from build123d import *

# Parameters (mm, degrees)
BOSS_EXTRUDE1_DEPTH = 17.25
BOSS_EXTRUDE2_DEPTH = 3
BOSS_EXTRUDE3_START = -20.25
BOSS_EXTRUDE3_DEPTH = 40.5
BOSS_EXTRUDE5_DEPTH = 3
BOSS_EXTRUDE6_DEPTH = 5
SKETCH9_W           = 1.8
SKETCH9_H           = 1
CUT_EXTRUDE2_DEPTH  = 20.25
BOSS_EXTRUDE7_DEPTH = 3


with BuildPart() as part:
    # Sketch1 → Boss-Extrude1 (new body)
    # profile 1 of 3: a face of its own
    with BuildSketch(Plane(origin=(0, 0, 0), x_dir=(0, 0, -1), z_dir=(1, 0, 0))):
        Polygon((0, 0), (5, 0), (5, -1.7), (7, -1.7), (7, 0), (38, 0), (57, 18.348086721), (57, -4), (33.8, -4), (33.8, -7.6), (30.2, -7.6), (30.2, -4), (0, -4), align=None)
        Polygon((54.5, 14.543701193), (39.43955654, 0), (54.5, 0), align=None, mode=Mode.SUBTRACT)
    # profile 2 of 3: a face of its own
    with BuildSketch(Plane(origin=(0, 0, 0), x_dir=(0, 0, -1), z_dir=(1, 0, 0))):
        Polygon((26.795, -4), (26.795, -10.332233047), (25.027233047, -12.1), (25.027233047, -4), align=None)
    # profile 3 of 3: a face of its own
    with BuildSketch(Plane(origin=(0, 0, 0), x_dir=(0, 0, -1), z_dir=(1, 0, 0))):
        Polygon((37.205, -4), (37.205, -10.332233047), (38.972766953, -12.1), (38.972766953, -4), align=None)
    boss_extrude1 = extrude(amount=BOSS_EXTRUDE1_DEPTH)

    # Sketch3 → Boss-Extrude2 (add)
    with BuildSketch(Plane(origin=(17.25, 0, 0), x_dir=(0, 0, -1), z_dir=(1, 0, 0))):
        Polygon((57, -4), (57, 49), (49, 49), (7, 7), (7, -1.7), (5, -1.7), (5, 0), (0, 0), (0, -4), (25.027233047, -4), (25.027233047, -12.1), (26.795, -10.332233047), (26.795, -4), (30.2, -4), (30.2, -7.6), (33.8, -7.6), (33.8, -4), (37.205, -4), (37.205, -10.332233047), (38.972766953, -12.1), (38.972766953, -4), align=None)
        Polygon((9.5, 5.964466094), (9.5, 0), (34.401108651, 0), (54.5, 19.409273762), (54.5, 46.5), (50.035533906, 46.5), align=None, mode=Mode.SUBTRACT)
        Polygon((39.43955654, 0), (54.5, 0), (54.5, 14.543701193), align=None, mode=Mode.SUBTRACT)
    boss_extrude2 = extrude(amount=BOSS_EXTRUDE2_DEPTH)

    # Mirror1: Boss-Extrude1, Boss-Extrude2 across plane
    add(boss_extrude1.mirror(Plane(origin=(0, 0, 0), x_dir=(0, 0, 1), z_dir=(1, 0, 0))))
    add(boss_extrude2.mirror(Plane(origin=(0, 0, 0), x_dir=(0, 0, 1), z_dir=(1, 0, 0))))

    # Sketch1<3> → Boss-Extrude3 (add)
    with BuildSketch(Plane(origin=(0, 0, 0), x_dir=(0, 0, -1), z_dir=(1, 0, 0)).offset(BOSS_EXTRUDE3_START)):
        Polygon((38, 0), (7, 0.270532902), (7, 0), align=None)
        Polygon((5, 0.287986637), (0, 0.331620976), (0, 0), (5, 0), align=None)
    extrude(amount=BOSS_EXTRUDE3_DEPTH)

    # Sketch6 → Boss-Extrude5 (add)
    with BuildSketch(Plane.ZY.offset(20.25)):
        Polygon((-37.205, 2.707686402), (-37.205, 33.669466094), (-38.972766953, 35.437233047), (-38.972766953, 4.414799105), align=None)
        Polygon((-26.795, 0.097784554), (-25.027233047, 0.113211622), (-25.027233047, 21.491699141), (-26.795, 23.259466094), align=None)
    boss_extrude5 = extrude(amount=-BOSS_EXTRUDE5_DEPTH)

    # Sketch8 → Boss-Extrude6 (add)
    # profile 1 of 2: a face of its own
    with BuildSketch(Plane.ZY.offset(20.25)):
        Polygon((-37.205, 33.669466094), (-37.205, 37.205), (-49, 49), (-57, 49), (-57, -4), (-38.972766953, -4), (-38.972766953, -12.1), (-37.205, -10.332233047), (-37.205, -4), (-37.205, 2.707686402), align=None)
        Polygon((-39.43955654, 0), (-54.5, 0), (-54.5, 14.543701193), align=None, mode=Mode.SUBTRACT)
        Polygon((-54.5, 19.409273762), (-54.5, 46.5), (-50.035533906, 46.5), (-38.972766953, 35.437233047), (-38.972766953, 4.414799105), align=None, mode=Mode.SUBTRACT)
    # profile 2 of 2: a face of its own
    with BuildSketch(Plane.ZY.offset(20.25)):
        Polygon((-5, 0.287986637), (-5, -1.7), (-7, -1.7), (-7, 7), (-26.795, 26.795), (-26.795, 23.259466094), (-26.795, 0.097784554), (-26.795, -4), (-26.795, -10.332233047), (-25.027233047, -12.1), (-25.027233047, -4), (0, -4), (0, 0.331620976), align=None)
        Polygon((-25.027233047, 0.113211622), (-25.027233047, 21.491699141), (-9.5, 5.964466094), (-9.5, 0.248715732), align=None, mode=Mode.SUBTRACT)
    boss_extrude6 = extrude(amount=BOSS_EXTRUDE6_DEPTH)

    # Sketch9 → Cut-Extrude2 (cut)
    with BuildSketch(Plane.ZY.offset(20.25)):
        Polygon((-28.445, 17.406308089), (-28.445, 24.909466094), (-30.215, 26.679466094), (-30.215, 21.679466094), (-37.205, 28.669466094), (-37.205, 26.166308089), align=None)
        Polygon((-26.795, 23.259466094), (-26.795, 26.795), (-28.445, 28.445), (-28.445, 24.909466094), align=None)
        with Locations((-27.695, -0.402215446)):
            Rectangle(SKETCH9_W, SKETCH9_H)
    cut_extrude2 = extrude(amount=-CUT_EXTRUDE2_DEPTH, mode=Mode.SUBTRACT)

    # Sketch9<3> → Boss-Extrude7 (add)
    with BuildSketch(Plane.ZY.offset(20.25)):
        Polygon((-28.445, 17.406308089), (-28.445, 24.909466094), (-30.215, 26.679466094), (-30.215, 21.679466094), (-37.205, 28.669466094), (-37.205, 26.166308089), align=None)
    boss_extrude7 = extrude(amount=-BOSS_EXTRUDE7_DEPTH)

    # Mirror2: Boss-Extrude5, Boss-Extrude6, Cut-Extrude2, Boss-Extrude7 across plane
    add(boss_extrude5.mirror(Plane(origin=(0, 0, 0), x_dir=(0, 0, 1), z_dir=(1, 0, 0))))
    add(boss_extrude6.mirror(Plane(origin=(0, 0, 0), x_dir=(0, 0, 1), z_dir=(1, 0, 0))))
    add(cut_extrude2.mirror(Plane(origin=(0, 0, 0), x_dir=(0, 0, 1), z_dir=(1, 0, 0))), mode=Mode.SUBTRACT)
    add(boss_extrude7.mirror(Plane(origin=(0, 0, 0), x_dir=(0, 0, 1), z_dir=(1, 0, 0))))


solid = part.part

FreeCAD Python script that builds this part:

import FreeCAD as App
import Part
import Sketcher

V = App.Vector
Q = App.Units.Quantity

doc = App.newDocument("Part")
body = doc.addObject("PartDesign::Body", "Body")

# Sketch on YZ plane
sketch1 = doc.addObject("Sketcher::SketchObject", "Sketch")
body.addObject(sketch1)
sketch1.AttachmentSupport = (doc.YZ_Plane, [""])
sketch1.MapMode = "FlatFace"
sketch1.addGeometry([
    Part.LineSegment(V(0, -5, 0), V(0, 0, 0)),  # 0
    Part.LineSegment(V(0, 0, 0), V(-4, 0, 0)),  # 1
    Part.LineSegment(V(-4, 0, 0), V(-4, -25, 0)),  # 2
    Part.LineSegment(V(-4, -25, 0), V(-12.1, -25, 0)),  # 3
    Part.LineSegment(V(-12.1, -25, 0), V(-10.3, -26.8, 0)),  # 4
    Part.LineSegment(V(-10.3, -26.8, 0), V(-4, -26.8, 0)),  # 5
    Part.LineSegment(V(-4, -26.8, 0), V(-4, -30.2, 0)),  # 6
    Part.LineSegment(V(-4, -30.2, 0), V(-7.6, -30.2, 0)),  # 7
    Part.LineSegment(V(-7.6, -30.2, 0), V(-7.6, -33.8, 0)),  # 8
    Part.LineSegment(V(-7.6, -33.8, 0), V(-4, -33.8, 0)),  # 9
    Part.LineSegment(V(-4, -33.8, 0), V(-4, -37.2, 0)),  # 10
    Part.LineSegment(V(-4, -37.2, 0), V(-10.3, -37.2, 0)),  # 11
    Part.LineSegment(V(-10.3, -37.2, 0), V(-12.1, -39, 0)),  # 12
    Part.LineSegment(V(-12.1, -39, 0), V(-4, -39, 0)),  # 13
    Part.LineSegment(V(-4, -39, 0), V(-4, -57, 0)),  # 14
    Part.LineSegment(V(-4, -57, 0), V(18.3, -57, 0)),  # 15
    Part.LineSegment(V(18.3, -57, 0), V(0, -38, 0)),  # 16
    Part.LineSegment(V(0, -38, 0), V(0, -7, 0)),  # 17
    Part.LineSegment(V(0, -7, 0), V(-1.7, -7, 0)),  # 18
    Part.LineSegment(V(-1.7, -7, 0), V(-1.7, -5, 0)),  # 19
    Part.LineSegment(V(-1.7, -5, 0), V(0, -5, 0)),  # 20
    Part.LineSegment(V(14.5, -54.5, 0), V(0, -54.5, 0)),  # 21
    Part.LineSegment(V(0, -54.5, 0), V(0, -39.4, 0)),  # 22
    Part.LineSegment(V(0, -39.4, 0), V(14.5, -54.5, 0)),  # 23
], False)
sketch1.addConstraint([
    Sketcher.Constraint("Coincident", 0, 2, 1, 1),
    Sketcher.Constraint("Coincident", 1, 2, 2, 1),
    Sketcher.Constraint("Coincident", 2, 2, 3, 1),
    Sketcher.Constraint("Coincident", 3, 2, 4, 1),
    Sketcher.Constraint("Coincident", 4, 2, 5, 1),
    Sketcher.Constraint("Coincident", 5, 2, 6, 1),
    Sketcher.Constraint("Coincident", 6, 2, 7, 1),
    Sketcher.Constraint("Coincident", 7, 2, 8, 1),
    Sketcher.Constraint("Coincident", 8, 2, 9, 1),
    Sketcher.Constraint("Coincident", 9, 2, 10, 1),
    Sketcher.Constraint("Coincident", 10, 2, 11, 1),
    Sketcher.Constraint("Coincident", 11, 2, 12, 1),
    Sketcher.Constraint("Coincident", 12, 2, 13, 1),
    Sketcher.Constraint("Coincident", 13, 2, 14, 1),
    Sketcher.Constraint("Coincident", 14, 2, 15, 1),
    Sketcher.Constraint("Coincident", 15, 2, 16, 1),
    Sketcher.Constraint("Coincident", 16, 2, 17, 1),
    Sketcher.Constraint("Coincident", 17, 2, 18, 1),
    Sketcher.Constraint("Coincident", 18, 2, 19, 1),
    Sketcher.Constraint("Coincident", 19, 2, 20, 1),
    Sketcher.Constraint("Coincident", 20, 2, 0, 1),
    Sketcher.Constraint("Coincident", 21, 2, 22, 1),
    Sketcher.Constraint("Coincident", 22, 2, 23, 1),
    Sketcher.Constraint("Coincident", 23, 2, 21, 1),
    Sketcher.Constraint("Vertical", 0),
    Sketcher.Constraint("Horizontal", 1),
    Sketcher.Constraint("Vertical", 2),
    Sketcher.Constraint("Horizontal", 3),
    Sketcher.Constraint("Horizontal", 5),
    Sketcher.Constraint("Vertical", 6),
    Sketcher.Constraint("Horizontal", 7),
    Sketcher.Constraint("Vertical", 8),
    Sketcher.Constraint("Horizontal", 9),
    Sketcher.Constraint("Vertical", 10),
    Sketcher.Constraint("Horizontal", 11),
    Sketcher.Constraint("Horizontal", 13),
    Sketcher.Constraint("Vertical", 14),
    Sketcher.Constraint("Horizontal", 15),
    Sketcher.Constraint("Vertical", 17),
    Sketcher.Constraint("Horizontal", 18),
    Sketcher.Constraint("Vertical", 19),
    Sketcher.Constraint("Horizontal", 20),
    Sketcher.Constraint("Horizontal", 21),
    Sketcher.Constraint("Vertical", 22),
    Sketcher.Constraint("Coincident", 0, 2, -1, 1),
    Sketcher.Constraint("PointOnObject", 16, 2, -2),
    Sketcher.Constraint("PointOnObject", 21, 2, -2),
    Sketcher.Constraint("Perpendicular", 4, 12),
    Sketcher.Constraint("Parallel", 16, 23),
    Sketcher.Constraint("Vertical", 2, 2, 5, 2),
    Sketcher.Constraint("Vertical", 6, 2, 9, 2),
    Sketcher.Constraint("Vertical", 4, 2, 11, 2),
    Sketcher.Constraint("Vertical", 3, 2, 12, 2),
    Sketcher.Constraint("Vertical", 10, 2, 13, 2),
    Sketcher.Constraint("Equal", 9, 8),
    Sketcher.Constraint("Equal", 6, 10),
    Sketcher.Constraint("Equal", 4, 12),
    Sketcher.Constraint("DistanceX", 1, 2, 1, 1, Q("4 mm")),
    Sketcher.Constraint("DistanceY", 0, 1, 0, 2, Q("5 mm")),
    Sketcher.Constraint("DistanceY", 17, 1, 17, 2, Q("31 mm")),
    Sketcher.Constraint("DistanceY", 19, 1, 19, 2, Q("2 mm")),
    Sketcher.Constraint("Angle", 16, Q("134 deg")),
    Sketcher.Constraint("DistanceX", 3, 2, 3, 1, Q("8.1 mm")),
    Sketcher.Constraint("DistanceX", 7, 2, 7, 1, Q("3.6 mm")),
    Sketcher.Constraint("DistanceX", 18, 2, 18, 1, Q("1.7 mm")),
    Sketcher.Constraint("DistanceY", 14, 2, -1, 1, Q("57 mm")),
    Sketcher.Constraint("Distance", 4, Q("2.5 mm")),
    Sketcher.Constraint("DistanceY", 6, 2, -1, 1, Q("30.2 mm")),
    Sketcher.Constraint("DistanceY", 21, 2, -1, 1, Q("54.5 mm")),
    Sketcher.Constraint("DistanceY", 6, 2, 6, 1, Q("3.405 mm")),
    Sketcher.Constraint("DistanceX", 21, 2, 21, 1, Q("14.543701 mm")),
])
pad1 = doc.addObject("PartDesign::Pad", "Pad")
body.addObject(pad1)
pad1.Profile = sketch1
pad1.Length = 17.25

# Sketch on YZ plane
sketch2 = doc.addObject("Sketcher::SketchObject", "Sketch001")
body.addObject(sketch2)
sketch2.AttachmentSupport = (doc.YZ_Plane, [""])
sketch2.MapMode = "FlatFace"
sketch2.AttachmentOffset = App.Placement(V(0, 0, 17.25), App.Rotation())
sketch2.addGeometry([
    Part.LineSegment(V(-4, -57, 0), V(49, -57, 0)),  # 0
    Part.LineSegment(V(49, -57, 0), V(49, -49, 0)),  # 1
    Part.LineSegment(V(49, -49, 0), V(7, -7, 0)),  # 2
    Part.LineSegment(V(7, -7, 0), V(-1.7, -7, 0)),  # 3
    Part.LineSegment(V(-1.7, -7, 0), V(-1.7, -5, 0)),  # 4
    Part.LineSegment(V(-1.7, -5, 0), V(0, -5, 0)),  # 5
    Part.LineSegment(V(0, -5, 0), V(0, 0, 0)),  # 6
    Part.LineSegment(V(0, 0, 0), V(-4, 0, 0)),  # 7
    Part.LineSegment(V(-4, 0, 0), V(-4, -25, 0)),  # 8
    Part.LineSegment(V(-4, -25, 0), V(-12.1, -25, 0)),  # 9
    Part.LineSegment(V(-12.1, -25, 0), V(-10.3, -26.8, 0)),  # 10
    Part.LineSegment(V(-10.3, -26.8, 0), V(-4, -26.8, 0)),  # 11
    Part.LineSegment(V(-4, -26.8, 0), V(-4, -30.2, 0)),  # 12
    Part.LineSegment(V(-4, -30.2, 0), V(-7.6, -30.2, 0)),  # 13
    Part.LineSegment(V(-7.6, -30.2, 0), V(-7.6, -33.8, 0)),  # 14
    Part.LineSegment(V(-7.6, -33.8, 0), V(-4, -33.8, 0)),  # 15
    Part.LineSegment(V(-4, -33.8, 0), V(-4, -37.2, 0)),  # 16
    Part.LineSegment(V(-4, -37.2, 0), V(-10.3, -37.2, 0)),  # 17
    Part.LineSegment(V(-10.3, -37.2, 0), V(-12.1, -39, 0)),  # 18
    Part.LineSegment(V(-12.1, -39, 0), V(-4, -39, 0)),  # 19
    Part.LineSegment(V(-4, -39, 0), V(-4, -57, 0)),  # 20
    Part.LineSegment(V(0, -54.5, 0), V(0, -39.4, 0)),  # 21
    Part.LineSegment(V(0, -39.4, 0), V(14.5, -54.5, 0)),  # 22
    Part.LineSegment(V(14.5, -54.5, 0), V(0, -54.5, 0)),  # 23
    Part.LineSegment(V(0, -9.5, 0), V(6, -9.5, 0)),  # 24
    Part.LineSegment(V(6, -9.5, 0), V(46.5, -50, 0)),  # 25
    Part.LineSegment(V(46.5, -50, 0), V(46.5, -54.5, 0)),  # 26
    Part.LineSegment(V(46.5, -54.5, 0), V(19.4, -54.5, 0)),  # 27
    Part.LineSegment(V(19.4, -54.5, 0), V(0, -34.4, 0)),  # 28
    Part.LineSegment(V(0, -34.4, 0), V(0, -9.5, 0)),  # 29
], False)
sketch2.addConstraint([
    Sketcher.Constraint("Coincident", 0, 2, 1, 1),
    Sketcher.Constraint("Coincident", 1, 2, 2, 1),
    Sketcher.Constraint("Coincident", 2, 2, 3, 1),
    Sketcher.Constraint("Coincident", 3, 2, 4, 1),
    Sketcher.Constraint("Coincident", 4, 2, 5, 1),
    Sketcher.Constraint("Coincident", 5, 2, 6, 1),
    Sketcher.Constraint("Coincident", 6, 2, 7, 1),
    Sketcher.Constraint("Coincident", 7, 2, 8, 1),
    Sketcher.Constraint("Coincident", 8, 2, 9, 1),
    Sketcher.Constraint("Coincident", 9, 2, 10, 1),
    Sketcher.Constraint("Coincident", 10, 2, 11, 1),
    Sketcher.Constraint("Coincident", 11, 2, 12, 1),
    Sketcher.Constraint("Coincident", 12, 2, 13, 1),
    Sketcher.Constraint("Coincident", 13, 2, 14, 1),
    Sketcher.Constraint("Coincident", 14, 2, 15, 1),
    Sketcher.Constraint("Coincident", 15, 2, 16, 1),
    Sketcher.Constraint("Coincident", 16, 2, 17, 1),
    Sketcher.Constraint("Coincident", 17, 2, 18, 1),
    Sketcher.Constraint("Coincident", 18, 2, 19, 1),
    Sketcher.Constraint("Coincident", 19, 2, 20, 1),
    Sketcher.Constraint("Coincident", 20, 2, 0, 1),
    Sketcher.Constraint("Coincident", 21, 2, 22, 1),
    Sketcher.Constraint("Coincident", 22, 2, 23, 1),
    Sketcher.Constraint("Coincident", 23, 2, 21, 1),
    Sketcher.Constraint("Coincident", 24, 2, 25, 1),
    Sketcher.Constraint("Coincident", 25, 2, 26, 1),
    Sketcher.Constraint("Coincident", 26, 2, 27, 1),
    Sketcher.Constraint("Coincident", 27, 2, 28, 1),
    Sketcher.Constraint("Coincident", 28, 2, 29, 1),
    Sketcher.Constraint("Coincident", 29, 2, 24, 1),
    Sketcher.Constraint("Horizontal", 0),
    Sketcher.Constraint("Vertical", 1),
    Sketcher.Constraint("Horizontal", 3),
    Sketcher.Constraint("Vertical", 4),
    Sketcher.Constraint("Horizontal", 5),
    Sketcher.Constraint("Vertical", 6),
    Sketcher.Constraint("Horizontal", 7),
    Sketcher.Constraint("Vertical", 8),
    Sketcher.Constraint("Horizontal", 9),
    Sketcher.Constraint("Horizontal", 11),
    Sketcher.Constraint("Vertical", 12),
    Sketcher.Constraint("Horizontal", 13),
    Sketcher.Constraint("Vertical", 14),
    Sketcher.Constraint("Horizontal", 15),
    Sketcher.Constraint("Vertical", 16),
    Sketcher.Constraint("Horizontal", 17),
    Sketcher.Constraint("Horizontal", 19),
    Sketcher.Constraint("Vertical", 20),
    Sketcher.Constraint("Vertical", 21),
    Sketcher.Constraint("Horizontal", 23),
    Sketcher.Constraint("Horizontal", 24),
    Sketcher.Constraint("Vertical", 26),
    Sketcher.Constraint("Horizontal", 27),
    Sketcher.Constraint("Vertical", 29),
    Sketcher.Constraint("Coincident", 6, 2, -1, 1),
    Sketcher.Constraint("PointOnObject", 21, 2, -2),
    Sketcher.Constraint("PointOnObject", 28, 2, -2),
    Sketcher.Constraint("Parallel", 2, 10),
    Sketcher.Constraint("Perpendicular", 10, 18),
    Sketcher.Constraint("Perpendicular", 18, 25),
    Sketcher.Constraint("Parallel", 22, 28),
    Sketcher.Constraint("Horizontal", 23, 2, 26, 2),
    Sketcher.Constraint("Vertical", 8, 2, 11, 2),
    Sketcher.Constraint("Vertical", 12, 2, 15, 2),
    Sketcher.Constraint("Vertical", 10, 2, 17, 2),
    Sketcher.Constraint("Vertical", 9, 2, 18, 2),
    Sketcher.Constraint("Vertical", 16, 2, 19, 2),
    Sketcher.Constraint("Equal", 15, 14),
    Sketcher.Constraint("Equal", 12, 16),
    Sketcher.Constraint("Equal", 10, 18),
    Sketcher.Constraint("DistanceX", 0, 1, 0, 2, Q("53 mm")),
    Sketcher.Constraint("DistanceX", 7, 2, 7, 1, Q("4 mm")),
    Sketcher.Constraint("DistanceY", 1, 1, 1, 2, Q("8 mm")),
    Sketcher.Constraint("DistanceY", 4, 1, 4, 2, Q("2 mm")),
    Sketcher.Constraint("DistanceY", 6, 1, 6, 2, Q("5 mm")),
    Sketcher.Constraint("Angle", 22, Q("-46 deg")),
    Sketcher.Constraint("DistanceX", 3, 2, 3, 1, Q("8.7 mm")),
    Sketcher.Constraint("DistanceX", 5, 1, 5, 2, Q("1.7 mm")),
    Sketcher.Constraint("DistanceX", 9, 2, 9, 1, Q("8.1 mm")),
    Sketcher.Constraint("DistanceX", 13, 2, 13, 1, Q("3.6 mm")),
    Sketcher.Constraint("Distance", 10, Q("2.5 mm")),
    Sketcher.Constraint("DistanceY", 12, 2, -1, 1, Q("30.2 mm")),
    Sketcher.Constraint("DistanceY", 22, 2, -1, 1, Q("54.5 mm")),
    Sketcher.Constraint("DistanceY", 24, 2, -1, 1, Q("9.5 mm")),
    Sketcher.Constraint("DistanceX", -1, 1, 25, 2, Q("46.5 mm")),
    Sketcher.Constraint("DistanceY", 12, 2, 12, 1, Q("3.405 mm")),
    Sketcher.Constraint("DistanceX", 23, 2, 23, 1, Q("14.543701 mm")),
    Sketcher.Constraint("Distance", 25, Q("57.325902 mm")),
    Sketcher.Constraint("DistanceY", 29, 1, 29, 2, Q("24.901109 mm")),
])
pad2 = doc.addObject("PartDesign::Pad", "Pad001")
body.addObject(pad2)
pad2.Profile = sketch2
pad2.Length = 3
doc.recompute()

mirrored = doc.addObject("PartDesign::Mirrored", "Mirrored")
body.addObject(mirrored)
mirrored.Originals = [pad1, pad2]
mirrored.MirrorPlane = (doc.YZ_Plane, [""])
body.Tip = mirrored

# Sketch on YZ plane
sketch3 = doc.addObject("Sketcher::SketchObject", "Sketch002")
body.addObject(sketch3)
sketch3.AttachmentSupport = (doc.YZ_Plane, [""])
sketch3.MapMode = "FlatFace"
sketch3.AttachmentOffset = App.Placement(V(0, 0, -20.25), App.Rotation())
sketch3.addGeometry([
    Part.LineSegment(V(0, -38, 0), V(0.27, -7, 0)),  # 0
    Part.LineSegment(V(0.27, -7, 0), V(0, -7, 0)),  # 1
    Part.LineSegment(V(0, -7, 0), V(0, -38, 0)),  # 2
    Part.LineSegment(V(0.29, -5, 0), V(0.33, 0, 0)),  # 3
    Part.LineSegment(V(0.33, 0, 0), V(0, 0, 0)),  # 4
    Part.LineSegment(V(0, 0, 0), V(0, -5, 0)),  # 5
    Part.LineSegment(V(0, -5, 0), V(0.29, -5, 0)),  # 6
], False)
sketch3.addConstraint([
    Sketcher.Constraint("Coincident", 0, 2, 1, 1),
    Sketcher.Constraint("Coincident", 1, 2, 2, 1),
    Sketcher.Constraint("Coincident", 2, 2, 0, 1),
    Sketcher.Constraint("Coincident", 3, 2, 4, 1),
    Sketcher.Constraint("Coincident", 4, 2, 5, 1),
    Sketcher.Constraint("Coincident", 5, 2, 6, 1),
    Sketcher.Constraint("Coincident", 6, 2, 3, 1),
    Sketcher.Constraint("Horizontal", 1),
    Sketcher.Constraint("Vertical", 2),
    Sketcher.Constraint("Horizontal", 4),
    Sketcher.Constraint("Vertical", 5),
    Sketcher.Constraint("Horizontal", 6),
    Sketcher.Constraint("Coincident", 4, 2, -1, 1),
    Sketcher.Constraint("PointOnObject", 1, 2, -2),
    Sketcher.Constraint("Parallel", 0, 3),
    Sketcher.Constraint("DistanceY", 2, 2, 2, 1, Q("31 mm")),
    Sketcher.Constraint("DistanceY", 5, 2, 5, 1, Q("5 mm")),
    Sketcher.Constraint("DistanceY", 0, 2, -1, 1, Q("7 mm")),
    Sketcher.Constraint("Angle", 0, Q("89.5 deg")),
    Sketcher.Constraint("DistanceX", 4, 2, 4, 1, Q("0.331621 mm")),
])
pad3 = doc.addObject("PartDesign::Pad", "Pad002")
body.addObject(pad3)
pad3.Profile = sketch3
pad3.Length = 40.5

# Sketch on YZ plane
sketch4 = doc.addObject("Sketcher::SketchObject", "Sketch003")
body.addObject(sketch4)
sketch4.AttachmentSupport = (doc.YZ_Plane, [""])
sketch4.MapMode = "FlatFace"
sketch4.AttachmentOffset = App.Placement(V(0, 0, -20.25), App.Rotation())
sketch4.addGeometry([
    Part.LineSegment(V(2.7, -37.2, 0), V(33.7, -37.2, 0)),  # 0
    Part.LineSegment(V(33.7, -37.2, 0), V(35.4, -39, 0)),  # 1
    Part.LineSegment(V(35.4, -39, 0), V(4.4, -39, 0)),  # 2
    Part.LineSegment(V(4.4, -39, 0), V(2.7, -37.2, 0)),  # 3
    Part.LineSegment(V(0.1, -26.8, 0), V(0.1, -25, 0)),  # 4
    Part.LineSegment(V(0.1, -25, 0), V(21.5, -25, 0)),  # 5
    Part.LineSegment(V(21.5, -25, 0), V(23.3, -26.8, 0)),  # 6
    Part.LineSegment(V(23.3, -26.8, 0), V(0.1, -26.8, 0)),  # 7
], False)
sketch4.addConstraint([
    Sketcher.Constraint("Coincident", 0, 2, 1, 1),
    Sketcher.Constraint("Coincident", 1, 2, 2, 1),
    Sketcher.Constraint("Coincident", 2, 2, 3, 1),
    Sketcher.Constraint("Coincident", 3, 2, 0, 1),
    Sketcher.Constraint("Coincident", 4, 2, 5, 1),
    Sketcher.Constraint("Coincident", 5, 2, 6, 1),
    Sketcher.Constraint("Coincident", 6, 2, 7, 1),
    Sketcher.Constraint("Coincident", 7, 2, 4, 1),
    Sketcher.Constraint("Horizontal", 0),
    Sketcher.Constraint("Horizontal", 2),
    Sketcher.Constraint("Horizontal", 5),
    Sketcher.Constraint("Horizontal", 7),
    Sketcher.Constraint("Parallel", 1, 6),
    Sketcher.Constraint("Equal", 1, 6),
    Sketcher.Constraint("Angle", 1, Q("-45 deg")),
    Sketcher.Constraint("Angle", 3, Q("134 deg")),
    Sketcher.Constraint("Angle", 4, Q("89.5 deg")),
    Sketcher.Constraint("Distance", 1, Q("2.5 mm")),
    Sketcher.Constraint("DistanceX", 6, 2, 0, 2, Q("10.41 mm")),
    Sketcher.Constraint("DistanceY", 0, 2, 6, 2, Q("10.41 mm")),
    Sketcher.Constraint("DistanceY", 0, 2, -1, 1, Q("37.205 mm")),
    Sketcher.Constraint("DistanceX", 0, 1, 0, 2, Q("30.96178 mm")),
    Sketcher.Constraint("DistanceX", 7, 2, 7, 1, Q("23.161682 mm")),
    Sketcher.Constraint("DistanceX", -1, 1, 2, 2, Q("4.414799 mm")),
])
pad4 = doc.addObject("PartDesign::Pad", "Pad003")
body.addObject(pad4)
pad4.Profile = sketch4
pad4.Length = 3

# Sketch on YZ plane
sketch5 = doc.addObject("Sketcher::SketchObject", "Sketch004")
body.addObject(sketch5)
sketch5.AttachmentSupport = (doc.YZ_Plane, [""])
sketch5.MapMode = "FlatFace"
sketch5.AttachmentOffset = App.Placement(V(0, 0, -20.25), App.Rotation())
sketch5.addGeometry([
    Part.LineSegment(V(37.2, -37.2, 0), V(49, -49, 0)),  # 0
    Part.LineSegment(V(49, -49, 0), V(49, -57, 0)),  # 1
    Part.LineSegment(V(49, -57, 0), V(-4, -57, 0)),  # 2
    Part.LineSegment(V(-4, -57, 0), V(-4, -39, 0)),  # 3
    Part.LineSegment(V(-4, -39, 0), V(-12.1, -39, 0)),  # 4
    Part.LineSegment(V(-12.1, -39, 0), V(-10.3, -37.2, 0)),  # 5
    Part.LineSegment(V(-10.3, -37.2, 0), V(37.2, -37.2, 0)),  # 6
    Part.LineSegment(V(14.5, -54.5, 0), V(0, -39.4, 0)),  # 7
    Part.LineSegment(V(0, -39.4, 0), V(0, -54.5, 0)),  # 8
    Part.LineSegment(V(0, -54.5, 0), V(14.5, -54.5, 0)),  # 9
    Part.LineSegment(V(4.4, -39, 0), V(19.4, -54.5, 0)),  # 10
    Part.LineSegment(V(19.4, -54.5, 0), V(46.5, -54.5, 0)),  # 11
    Part.LineSegment(V(46.5, -54.5, 0), V(46.5, -50, 0)),  # 12
    Part.LineSegment(V(46.5, -50, 0), V(35.4, -39, 0)),  # 13
    Part.LineSegment(V(35.4, -39, 0), V(4.4, -39, 0)),  # 14
    Part.LineSegment(V(0.3, -5, 0), V(-1.7, -5, 0)),  # 15
    Part.LineSegment(V(-1.7, -5, 0), V(-1.7, -7, 0)),  # 16
    Part.LineSegment(V(-1.7, -7, 0), V(7, -7, 0)),  # 17
    Part.LineSegment(V(7, -7, 0), V(26.8, -26.8, 0)),  # 18
    Part.LineSegment(V(26.8, -26.8, 0), V(-10.3, -26.8, 0)),  # 19
    Part.LineSegment(V(-10.3, -26.8, 0), V(-12.1, -25, 0)),  # 20
    Part.LineSegment(V(-12.1, -25, 0), V(-4, -25, 0)),  # 21
    Part.LineSegment(V(-4, -25, 0), V(-4, 0, 0)),  # 22
    Part.LineSegment(V(-4, 0, 0), V(0.3, 0, 0)),  # 23
    Part.LineSegment(V(0.3, 0, 0), V(0.3, -5, 0)),  # 24
    Part.LineSegment(V(0.2, -9.5, 0), V(0.1, -25, 0)),  # 25
    Part.LineSegment(V(0.1, -25, 0), V(21.5, -25, 0)),  # 26
    Part.LineSegment(V(21.5, -25, 0), V(6, -9.5, 0)),  # 27
    Part.LineSegment(V(6, -9.5, 0), V(0.2, -9.5, 0)),  # 28
], False)
sketch5.addConstraint([
    Sketcher.Constraint("Coincident", 0, 2, 1, 1),
    Sketcher.Constraint("Coincident", 1, 2, 2, 1),
    Sketcher.Constraint("Coincident", 2, 2, 3, 1),
    Sketcher.Constraint("Coincident", 3, 2, 4, 1),
    Sketcher.Constraint("Coincident", 4, 2, 5, 1),
    Sketcher.Constraint("Coincident", 5, 2, 6, 1),
    Sketcher.Constraint("Coincident", 6, 2, 0, 1),
    Sketcher.Constraint("Coincident", 7, 2, 8, 1),
    Sketcher.Constraint("Coincident", 8, 2, 9, 1),
    Sketcher.Constraint("Coincident", 9, 2, 7, 1),
    Sketcher.Constraint("Coincident", 10, 2, 11, 1),
    Sketcher.Constraint("Coincident", 11, 2, 12, 1),
    Sketcher.Constraint("Coincident", 12, 2, 13, 1),
    Sketcher.Constraint("Coincident", 13, 2, 14, 1),
    Sketcher.Constraint("Coincident", 14, 2, 10, 1),
    Sketcher.Constraint("Coincident", 15, 2, 16, 1),
    Sketcher.Constraint("Coincident", 16, 2, 17, 1),
    Sketcher.Constraint("Coincident", 17, 2, 18, 1),
    Sketcher.Constraint("Coincident", 18, 2, 19, 1),
    Sketcher.Constraint("Coincident", 19, 2, 20, 1),
    Sketcher.Constraint("Coincident", 20, 2, 21, 1),
    Sketcher.Constraint("Coincident", 21, 2, 22, 1),
    Sketcher.Constraint("Coincident", 22, 2, 23, 1),
    Sketcher.Constraint("Coincident", 23, 2, 24, 1),
    Sketcher.Constraint("Coincident", 24, 2, 15, 1),
    Sketcher.Constraint("Coincident", 25, 2, 26, 1),
    Sketcher.Constraint("Coincident", 26, 2, 27, 1),
    Sketcher.Constraint("Coincident", 27, 2, 28, 1),
    Sketcher.Constraint("Coincident", 28, 2, 25, 1),
    Sketcher.Constraint("Vertical", 1),
    Sketcher.Constraint("Horizontal", 2),
    Sketcher.Constraint("Vertical", 3),
    Sketcher.Constraint("Horizontal", 4),
    Sketcher.Constraint("Horizontal", 6),
    Sketcher.Constraint("Vertical", 8),
    Sketcher.Constraint("Horizontal", 9),
    Sketcher.Constraint("Horizontal", 11),
    Sketcher.Constraint("Vertical", 12),
    Sketcher.Constraint("Horizontal", 14),
    Sketcher.Constraint("Horizontal", 15),
    Sketcher.Constraint("Vertical", 16),
    Sketcher.Constraint("Horizontal", 17),
    Sketcher.Constraint("Horizontal", 19),
    Sketcher.Constraint("Horizontal", 21),
    Sketcher.Constraint("Vertical", 22),
    Sketcher.Constraint("Horizontal", 23),
    Sketcher.Constraint("Horizontal", 26),
    Sketcher.Constraint("Horizontal", 28),
    Sketcher.Constraint("PointOnObject", 7, 2, -2),
    Sketcher.Constraint("PointOnObject", 22, 2, -1),
    Sketcher.Constraint("Perpendicular", 0, 5),
    Sketcher.Constraint("Parallel", 7, 10),
    Sketcher.Constraint("Perpendicular", 5, 13),
    Sketcher.Constraint("Parallel", 13, 18),
    Sketcher.Constraint("Parallel", 18, 20),
    Sketcher.Constraint("Parallel", 24, 25),
    Sketcher.Constraint("Parallel", 20, 27),
    Sketcher.Constraint("Horizontal", 9, 2, 10, 2),
    Sketcher.Constraint("Horizontal", 4, 2, 13, 2),
    Sketcher.Constraint("Horizontal", 21, 2, 25, 2),
    Sketcher.Constraint("Vertical", 5, 2, 19, 2),
    Sketcher.Constraint("Vertical", 4, 2, 20, 2),
    Sketcher.Constraint("Vertical", 3, 2, 21, 2),
    Sketcher.Constraint("Equal", 5, 20),
    Sketcher.Constraint("DistanceX", 2, 2, 2, 1, Q("53 mm")),
    Sketcher.Constraint("DistanceY", 1, 2, 1, 1, Q("8 mm")),
    Sketcher.Constraint("DistanceY", 16, 2, 16, 1, Q("2 mm")),
    Sketcher.Constraint("Angle", 7, Q("134 deg")),
    Sketcher.Constraint("DistanceX", 4, 2, 4, 1, Q("8.1 mm")),
    Sketcher.Constraint("DistanceX", 17, 1, 17, 2, Q("8.7 mm")),
    Sketcher.Constraint("DistanceX", -1, 1, 0, 2, Q("49 mm")),
    Sketcher.Constraint("DistanceY", 0, 2, -1, 1, Q("49 mm")),
    Sketcher.Constraint("DistanceY", 15, 2, -1, 1, Q("5 mm")),
    Sketcher.Constraint("DistanceX", -1, 1, 17, 2, Q("7 mm")),
    Sketcher.Constraint("Angle", 24, Q("-90.5 deg")),
    Sketcher.Constraint("Distance", 5, Q("2.5 mm")),
    Sketcher.Constraint("DistanceY", 8, 2, -1, 1, Q("54.5 mm")),
    Sketcher.Constraint("DistanceX", -1, 1, 11, 2, Q("46.5 mm")),
    Sketcher.Constraint("DistanceY", 27, 2, -1, 1, Q("9.5 mm")),
    Sketcher.Constraint("DistanceX", 18, 2, 6, 2, Q("10.41 mm")),
    Sketcher.Constraint("DistanceX", 9, 1, 9, 2, Q("14.543701 mm")),
    Sketcher.Constraint("DistanceY", 5, 2, -1, 1, Q("37.205 mm")),
    Sketcher.Constraint("DistanceX", 23, 1, 23, 2, Q("4.331621 mm")),
    Sketcher.Constraint("DistanceX", 28, 2, 28, 1, Q("5.71575 mm")),
    Sketcher.Constraint("DistanceX", -1, 1, 14, 2, Q("4.414799 mm")),
    Sketcher.Constraint("DistanceX", -1, 1, 26, 2, Q("21.491699 mm")),
    Sketcher.Constraint("DistanceX", 14, 2, 14, 1, Q("31.022434 mm")),
])
pad5 = doc.addObject("PartDesign::Pad", "Pad004")
body.addObject(pad5)
pad5.Profile = sketch5
pad5.Length = 5
pad5.Reversed = True

# Sketch on YZ plane
sketch6 = doc.addObject("Sketcher::SketchObject", "Sketch005")
body.addObject(sketch6)
sketch6.AttachmentSupport = (doc.YZ_Plane, [""])
sketch6.MapMode = "FlatFace"
sketch6.AttachmentOffset = App.Placement(V(0, 0, -20.25), App.Rotation())
sketch6.addGeometry([
    Part.LineSegment(V(17.4, -28.4, 0), V(24.9, -28.4, 0)),  # 0
    Part.LineSegment(V(24.9, -28.4, 0), V(26.7, -30.2, 0)),  # 1
    Part.LineSegment(V(26.7, -30.2, 0), V(21.7, -30.2, 0)),  # 2
    Part.LineSegment(V(21.7, -30.2, 0), V(28.7, -37.2, 0)),  # 3
    Part.LineSegment(V(28.7, -37.2, 0), V(26.2, -37.2, 0)),  # 4
    Part.LineSegment(V(26.2, -37.2, 0), V(17.4, -28.4, 0)),  # 5
    Part.LineSegment(V(23.3, -26.8, 0), V(26.8, -26.8, 0)),  # 6
    Part.LineSegment(V(26.8, -26.8, 0), V(28.4, -28.4, 0)),  # 7
    Part.LineSegment(V(28.4, -28.4, 0), V(24.9, -28.4, 0)),  # 8
    Part.LineSegment(V(24.9, -28.4, 0), V(23.3, -26.8, 0)),  # 9
    Part.LineSegment(V(0.1, -28.6, 0), V(-0.9, -28.6, 0)),  # 10
    Part.LineSegment(V(-0.9, -28.6, 0), V(-0.9, -26.8, 0)),  # 11
    Part.LineSegment(V(-0.9, -26.8, 0), V(0.1, -26.8, 0)),  # 12
    Part.LineSegment(V(0.1, -26.8, 0), V(0.1, -28.6, 0)),  # 13
], False)
sketch6.addConstraint([
    Sketcher.Constraint("Coincident", 0, 2, 1, 1),
    Sketcher.Constraint("Coincident", 1, 2, 2, 1),
    Sketcher.Constraint("Coincident", 2, 2, 3, 1),
    Sketcher.Constraint("Coincident", 3, 2, 4, 1),
    Sketcher.Constraint("Coincident", 4, 2, 5, 1),
    Sketcher.Constraint("Coincident", 5, 2, 0, 1),
    Sketcher.Constraint("Coincident", 6, 2, 7, 1),
    Sketcher.Constraint("Coincident", 7, 2, 8, 1),
    Sketcher.Constraint("Coincident", 8, 2, 9, 1),
    Sketcher.Constraint("Coincident", 9, 2, 6, 1),
    Sketcher.Constraint("Coincident", 10, 2, 11, 1),
    Sketcher.Constraint("Coincident", 11, 2, 12, 1),
    Sketcher.Constraint("Coincident", 12, 2, 13, 1),
    Sketcher.Constraint("Coincident", 13, 2, 10, 1),
    Sketcher.Constraint("Horizontal", 0),
    Sketcher.Constraint("Horizontal", 2),
    Sketcher.Constraint("Horizontal", 4),
    Sketcher.Constraint("Horizontal", 6),
    Sketcher.Constraint("Horizontal", 8),
    Sketcher.Constraint("Horizontal", 10),
    Sketcher.Constraint("Vertical", 11),
    Sketcher.Constraint("Horizontal", 12),
    Sketcher.Constraint("Vertical", 13),
    Sketcher.Constraint("Coincident", 8, 2, 0, 2),
    Sketcher.Constraint("Parallel", 1, 3),
    Sketcher.Constraint("Parallel", 3, 5),
    Sketcher.Constraint("Parallel", 5, 7),
    Sketcher.Constraint("Parallel", 7, 9),
    Sketcher.Constraint("Horizontal", 9, 2, 11, 2),
    Sketcher.Constraint("DistanceX", 2, 2, 2, 1, Q("5 mm")),
    Sketcher.Constraint("DistanceX", 10, 2, 10, 1, Q("1 mm")),
    Sketcher.Constraint("Angle", 1, Q("-45 deg")),
    Sketcher.Constraint("DistanceY", 11, 1, 11, 2, Q("1.8 mm")),
    Sketcher.Constraint("DistanceX", 0, 2, 1, 2, Q("1.77 mm")),
    Sketcher.Constraint("DistanceX", 1, 2, 3, 2, Q("1.99 mm")),
    Sketcher.Constraint("DistanceY", 0, 2, 6, 2, Q("1.65 mm")),
    Sketcher.Constraint("DistanceY", 0, 2, -1, 1, Q("28.445 mm")),
    Sketcher.Constraint("DistanceX", -1, 1, 6, 2, Q("26.795 mm")),
    Sketcher.Constraint("DistanceX", 0, 1, 0, 2, Q("7.503158 mm")),
    Sketcher.Constraint("DistanceX", 6, 1, 6, 2, Q("3.535534 mm")),
    Sketcher.Constraint("DistanceX", 10, 2, 2, 2, Q("22.581682 mm")),
])
pocket1 = doc.addObject("PartDesign::Pocket", "Pocket")
body.addObject(pocket1)
pocket1.Profile = sketch6
pocket1.Length = 20.25
pocket1.Reversed = True

# Sketch on YZ plane
sketch7 = doc.addObject("Sketcher::SketchObject", "Sketch006")
body.addObject(sketch7)
sketch7.AttachmentSupport = (doc.YZ_Plane, [""])
sketch7.MapMode = "FlatFace"
sketch7.AttachmentOffset = App.Placement(V(0, 0, -20.25), App.Rotation())
sketch7.addGeometry([
    Part.LineSegment(V(17.4, -28.4, 0), V(24.9, -28.4, 0)),  # 0
    Part.LineSegment(V(24.9, -28.4, 0), V(26.7, -30.2, 0)),  # 1
    Part.LineSegment(V(26.7, -30.2, 0), V(21.7, -30.2, 0)),  # 2
    Part.LineSegment(V(21.7, -30.2, 0), V(28.7, -37.2, 0)),  # 3
    Part.LineSegment(V(28.7, -37.2, 0), V(26.2, -37.2, 0)),  # 4
    Part.LineSegment(V(26.2, -37.2, 0), V(17.4, -28.4, 0)),  # 5
], False)
sketch7.addConstraint([
    Sketcher.Constraint("Coincident", 0, 2, 1, 1),
    Sketcher.Constraint("Coincident", 1, 2, 2, 1),
    Sketcher.Constraint("Coincident", 2, 2, 3, 1),
    Sketcher.Constraint("Coincident", 3, 2, 4, 1),
    Sketcher.Constraint("Coincident", 4, 2, 5, 1),
    Sketcher.Constraint("Coincident", 5, 2, 0, 1),
    Sketcher.Constraint("Horizontal", 0),
    Sketcher.Constraint("Horizontal", 2),
    Sketcher.Constraint("Horizontal", 4),
    Sketcher.Constraint("Parallel", 1, 3),
    Sketcher.Constraint("Parallel", 3, 5),
    Sketcher.Constraint("DistanceX", 2, 2, 2, 1, Q("5 mm")),
    Sketcher.Constraint("Angle", 1, Q("-45 deg")),
    Sketcher.Constraint("DistanceX", 0, 2, 1, 2, Q("1.77 mm")),
    Sketcher.Constraint("DistanceX", 1, 2, 3, 2, Q("1.99 mm")),
    Sketcher.Constraint("DistanceY", 0, 2, -1, 1, Q("28.445 mm")),
    Sketcher.Constraint("DistanceX", 0, 1, 0, 2, Q("7.503158 mm")),
    Sketcher.Constraint("DistanceX", -1, 1, 4, 2, Q("26.166308 mm")),
])
pad6 = doc.addObject("PartDesign::Pad", "Pad005")
body.addObject(pad6)
pad6.Profile = sketch7
pad6.Length = 3
doc.recompute()

mirrored2 = doc.addObject("PartDesign::Mirrored", "Mirrored001")
body.addObject(mirrored2)
mirrored2.Originals = [pad4, pad5, pocket1, pad6]
mirrored2.MirrorPlane = (doc.YZ_Plane, [""])
body.Tip = mirrored2

doc.recompute()
